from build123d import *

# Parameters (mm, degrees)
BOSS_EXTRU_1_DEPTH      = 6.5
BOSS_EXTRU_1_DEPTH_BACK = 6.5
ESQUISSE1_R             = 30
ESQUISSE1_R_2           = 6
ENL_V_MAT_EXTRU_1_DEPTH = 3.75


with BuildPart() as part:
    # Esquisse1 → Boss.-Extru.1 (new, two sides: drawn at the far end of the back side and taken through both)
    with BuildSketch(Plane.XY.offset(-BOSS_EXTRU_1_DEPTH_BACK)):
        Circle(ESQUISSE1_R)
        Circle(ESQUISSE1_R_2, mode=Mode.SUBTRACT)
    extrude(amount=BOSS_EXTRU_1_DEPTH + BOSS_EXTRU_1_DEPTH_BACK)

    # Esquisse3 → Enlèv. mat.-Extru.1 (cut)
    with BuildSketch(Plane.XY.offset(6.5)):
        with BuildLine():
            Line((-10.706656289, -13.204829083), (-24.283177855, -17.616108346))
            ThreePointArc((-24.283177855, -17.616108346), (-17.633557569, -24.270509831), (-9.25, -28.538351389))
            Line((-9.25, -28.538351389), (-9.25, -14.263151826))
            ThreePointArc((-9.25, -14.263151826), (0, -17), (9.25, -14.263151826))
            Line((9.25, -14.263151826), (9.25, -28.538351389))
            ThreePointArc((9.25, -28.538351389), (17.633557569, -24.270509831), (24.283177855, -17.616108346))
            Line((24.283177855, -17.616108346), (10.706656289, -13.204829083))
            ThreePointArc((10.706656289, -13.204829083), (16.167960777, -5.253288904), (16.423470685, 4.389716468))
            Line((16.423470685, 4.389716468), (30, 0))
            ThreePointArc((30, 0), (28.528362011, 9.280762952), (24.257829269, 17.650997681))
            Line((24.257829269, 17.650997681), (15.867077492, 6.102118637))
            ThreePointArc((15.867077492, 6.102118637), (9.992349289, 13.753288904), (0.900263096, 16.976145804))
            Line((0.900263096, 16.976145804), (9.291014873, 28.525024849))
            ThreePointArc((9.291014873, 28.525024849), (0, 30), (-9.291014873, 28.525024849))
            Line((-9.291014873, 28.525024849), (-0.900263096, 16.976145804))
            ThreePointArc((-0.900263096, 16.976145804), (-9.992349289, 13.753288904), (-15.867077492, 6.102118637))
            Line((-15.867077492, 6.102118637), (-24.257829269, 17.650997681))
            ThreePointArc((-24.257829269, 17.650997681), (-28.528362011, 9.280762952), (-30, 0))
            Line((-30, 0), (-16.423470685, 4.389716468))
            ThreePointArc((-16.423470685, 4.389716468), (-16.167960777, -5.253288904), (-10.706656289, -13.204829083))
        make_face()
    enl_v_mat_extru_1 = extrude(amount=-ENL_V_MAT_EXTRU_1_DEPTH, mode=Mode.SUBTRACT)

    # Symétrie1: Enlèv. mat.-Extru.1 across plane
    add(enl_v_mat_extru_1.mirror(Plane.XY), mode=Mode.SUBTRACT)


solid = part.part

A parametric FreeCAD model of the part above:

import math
import FreeCAD as App
import Part
import Sketcher

V = App.Vector
Q = App.Units.Quantity

doc = App.newDocument("Part")
body = doc.addObject("PartDesign::Body", "Body")

sketch1 = body.newObject("Sketcher::SketchObject", "Sketch")
sketch1.AttachmentSupport = (doc.getObject("XY_Plane"), [""])
sketch1.MapMode = "FlatFace"
sketch1.addGeometry([
    Part.Circle(V(0, 0, 0), V(0, 0, 1), 30),
    Part.Circle(V(0, 0, 0), V(0, 0, 1), 6),
], False)
sketch1.addConstraint([
    Sketcher.Constraint("Coincident", 0, 3, -1, 1),
    Sketcher.Constraint("Coincident", 1, 3, -1, 1),
    Sketcher.Constraint("Diameter", 0, 60.0),
    Sketcher.Constraint("Diameter", 1, 12.0),
])
pad1 = body.newObject("PartDesign::Pad", "Pad")
pad1.Profile = sketch1
pad1.Type = "TwoLengths"
pad1.Length = 6.5
pad1.Length2 = 6.5

sketch2 = body.newObject("Sketcher::SketchObject", "Sketch001")
sketch2.AttachmentSupport = (doc.getObject("XY_Plane"), [""])
sketch2.MapMode = "FlatFace"
sketch2.AttachmentOffset = App.Placement(V(0, 0, 6.5), App.Rotation())
sketch2.addGeometry([
    Part.LineSegment(V(-11, -13, 0), V(-24, -18, 0)),
    Part.ArcOfCircle(Part.Circle(V(0, 0, 0), V(0, 0, 1), 30), math.radians(-144), math.radians(-108)),
    Part.LineSegment(V(-9, -29, 0), V(-9, -14, 0)),
    Part.ArcOfCircle(Part.Circle(V(0, 0, 0), V(0, 0, 1), 17), math.radians(-123), math.radians(-57)),
    Part.LineSegment(V(9, -14, 0), V(9, -29, 0)),
    Part.ArcOfCircle(Part.Circle(V(0, 0, 0), V(0, 0, 1), 30), math.radians(-72), math.radians(-36)),
    Part.LineSegment(V(24, -18, 0), V(11, -13, 0)),
    Part.ArcOfCircle(Part.Circle(V(0, 0, 0), V(0, 0, 1), 17), math.radians(-51), math.radians(15)),
    Part.LineSegment(V(16, 4, 0), V(30, 0, 0)),
    Part.ArcOfCircle(Part.Circle(V(0, 0, 0), V(0, 0, 1), 30), math.radians(0), math.radians(36)),
    Part.LineSegment(V(24, 18, 0), V(16, 6, 0)),
    Part.ArcOfCircle(Part.Circle(V(0, 0, 0), V(0, 0, 1), 17), math.radians(21), math.radians(87)),
    Part.LineSegment(V(1, 17, 0), V(9, 29, 0)),
    Part.ArcOfCircle(Part.Circle(V(0, 0, 0), V(0, 0, 1), 30), math.radians(72), math.radians(108)),
    Part.LineSegment(V(-9, 29, 0), V(-1, 17, 0)),
    Part.ArcOfCircle(Part.Circle(V(0, 0, 0), V(0, 0, 1), 17), math.radians(93), math.radians(159)),
    Part.LineSegment(V(-16, 6, 0), V(-24, 18, 0)),
    Part.ArcOfCircle(Part.Circle(V(0, 0, 0), V(0, 0, 1), 30), math.radians(144), math.radians(180)),
    Part.LineSegment(V(-30, 0, 0), V(-16, 4, 0)),
    Part.ArcOfCircle(Part.Circle(V(0, 0, 0), V(0, 0, 1), 17), math.radians(165), math.radians(231)),
], False)
sketch2.addConstraint([
    Sketcher.Constraint("Coincident", 0, 2, 1, 1),
    Sketcher.Constraint("Coincident", 1, 2, 2, 1),
    Sketcher.Constraint("Coincident", 2, 2, 3, 1),
    Sketcher.Constraint("Coincident", 3, 2, 4, 1),
    Sketcher.Constraint("Coincident", 4, 2, 5, 1),
    Sketcher.Constraint("Coincident", 5, 2, 6, 1),
    Sketcher.Constraint("Coincident", 6, 2, 7, 1),
    Sketcher.Constraint("Coincident", 7, 2, 8, 1),
    Sketcher.Constraint("Coincident", 8, 2, 9, 1),
    Sketcher.Constraint("Coincident", 9, 2, 10, 1),
    Sketcher.Constraint("Coincident", 10, 2, 11, 1),
    Sketcher.Constraint("Coincident", 11, 2, 12, 1),
    Sketcher.Constraint("Coincident", 12, 2, 13, 1),
    Sketcher.Constraint("Coincident", 13, 2, 14, 1),
    Sketcher.Constraint("Coincident", 14, 2, 15, 1),
    Sketcher.Constraint("Coincident", 15, 2, 16, 1),
    Sketcher.Constraint("Coincident", 16, 2, 17, 1),
    Sketcher.Constraint("Coincident", 17, 2, 18, 1),
    Sketcher.Constraint("Coincident", 18, 2, 19, 1),
    Sketcher.Constraint("Coincident", 19, 2, 0, 1),
    Sketcher.Constraint("Vertical", 2),
    Sketcher.Constraint("Vertical", 4),
    Sketcher.Constraint("Coincident", 1, 3, -1, 1),
    Sketcher.Constraint("Coincident", 3, 3, -1, 1),
    Sketcher.Constraint("Coincident", 5, 3, -1, 1),
    Sketcher.Constraint("Coincident", 7, 3, -1, 1),
    Sketcher.Constraint("Coincident", 9, 3, -1, 1),
    Sketcher.Constraint("Coincident", 11, 3, -1, 1),
    Sketcher.Constraint("Coincident", 13, 3, -1, 1),
    Sketcher.Constraint("Coincident", 15, 3, -1, 1),
    Sketcher.Constraint("Coincident", 17, 3, -1, 1),
    Sketcher.Constraint("Coincident", 19, 3, -1, 1),
    Sketcher.Constraint("Equal", 1, 5),
    Sketcher.Constraint("Equal", 3, 7),
    Sketcher.Constraint("Equal", 5, 9),
    Sketcher.Constraint("Equal", 7, 11),
    Sketcher.Constraint("Equal", 9, 13),
    Sketcher.Constraint("Equal", 11, 15),
    Sketcher.Constraint("Equal", 13, 17),
    Sketcher.Constraint("Equal", 15, 19),
    Sketcher.Constraint("PointOnObject", 8, 2, -1),
    Sketcher.Constraint("PointOnObject", 17, 2, -1),
    Sketcher.Constraint("Parallel", 10, 12),
    Sketcher.Constraint("Parallel", 14, 16),
    Sketcher.Constraint("Horizontal", 2, 2, 3, 2),
    Sketcher.Constraint("Horizontal", 0, 2, 5, 2),
    Sketcher.Constraint("Horizontal", 12, 2, 13, 2),
    Sketcher.Constraint("Horizontal", 11, 2, 14, 2),
    Sketcher.Constraint("Horizontal", 10, 2, 15, 2),
    Sketcher.Constraint("Horizontal", 7, 2, 18, 2),
    Sketcher.Constraint("Horizontal", 6, 2, 19, 2),
    Sketcher.Constraint("Equal", 6, 10),
    Sketcher.Constraint("Equal", 10, 12),
    Sketcher.Constraint("Radius", 1, 30.0),
    Sketcher.Constraint("Radius", 3, 17.0),
    Sketcher.Constraint("Angle", 0, Q("-162 deg")),
    Sketcher.Constraint("Angle", 10, Q("-126 deg")),
    Sketcher.Constraint("DistanceX", 1, 2, 4, 2, 18.5),
    Sketcher.Constraint("Distance", 0, 14.2752),
    Sketcher.Constraint("Distance", 8, 14.268558),
])
pocket1 = body.newObject("PartDesign::Pocket", "Pocket")
pocket1.Profile = sketch2
pocket1.Length = 3.75
doc.recompute()

mirrored = body.newObject("PartDesign::Mirrored", "Mirrored")
mirrored.Originals = [pocket1]
mirrored.MirrorPlane = (doc.getObject("XY_Plane"), [""])
body.Tip = mirrored

doc.recompute()
